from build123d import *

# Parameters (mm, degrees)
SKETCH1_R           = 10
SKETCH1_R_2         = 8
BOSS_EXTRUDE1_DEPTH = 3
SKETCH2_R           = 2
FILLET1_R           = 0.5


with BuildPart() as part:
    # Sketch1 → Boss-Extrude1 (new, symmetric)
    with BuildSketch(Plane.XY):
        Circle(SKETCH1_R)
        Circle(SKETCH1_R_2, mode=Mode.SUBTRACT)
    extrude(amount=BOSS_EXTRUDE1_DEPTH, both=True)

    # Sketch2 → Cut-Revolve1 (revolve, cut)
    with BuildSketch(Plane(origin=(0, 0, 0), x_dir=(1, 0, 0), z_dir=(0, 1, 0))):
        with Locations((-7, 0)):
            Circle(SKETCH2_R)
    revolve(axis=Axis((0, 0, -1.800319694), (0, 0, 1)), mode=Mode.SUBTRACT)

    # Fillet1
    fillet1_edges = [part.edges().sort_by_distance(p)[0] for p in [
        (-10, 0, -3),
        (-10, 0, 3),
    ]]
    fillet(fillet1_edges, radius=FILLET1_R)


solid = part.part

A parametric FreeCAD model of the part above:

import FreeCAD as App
import Part
import Sketcher
from FreeCAD import Vector
Q = App.Units.Quantity


def edges_at(feature, points):
    """Names of the edges that pass closest to the given points."""
    edges = feature.Shape.Edges
    near = lambda p: min(range(len(edges)), key=lambda i: edges[i].distToShape(Part.Vertex(*p))[0])
    return sorted({f"Edge{near(p) + 1}" for p in points})

doc = App.newDocument("Part")
body = doc.addObject("PartDesign::Body", "Body")

sketch1 = doc.addObject("Sketcher::SketchObject", "Sketch")
body.addObject(sketch1)
sketch1.AttachmentSupport = (doc.XY_Plane, [""])
sketch1.MapMode = "FlatFace"
sketch1.addGeometry([
    Part.Circle(Vector(0, 0, 0), Vector(0, 0, 1), 10),
    Part.Circle(Vector(0, 0, 0), Vector(0, 0, 1), 8),
], False)
sketch1.addConstraint([
    Sketcher.Constraint("Coincident", 0, 3, -1, 1),
    Sketcher.Constraint("Coincident", 1, 3, -1, 1),
    Sketcher.Constraint("Diameter", 0, Q("20 mm")),
    Sketcher.Constraint("Diameter", 1, Q("16 mm")),
])
pad1 = doc.addObject("PartDesign::Pad", "Pad")
body.addObject(pad1)
pad1.Profile = sketch1
pad1.Length = 6
pad1.Midplane = True

sketch2 = doc.addObject("Sketcher::SketchObject", "Sketch001")
body.addObject(sketch2)
sketch2.AttachmentSupport = (doc.XZ_Plane, [""])
sketch2.MapMode = "FlatFace"
sketch2.addGeometry(Part.Circle(Vector(-7, 0, 0), Vector(0, 0, 1), 2), False)
sketch2.addConstraint([
    Sketcher.Constraint("PointOnObject", 0, 3, -1),
    Sketcher.Constraint("Diameter", 0, Q("4 mm")),
    Sketcher.Constraint("DistanceX", 0, 3, -1, 1, Q("7 mm")),
])
groove = doc.addObject("PartDesign::Groove", "Groove")
body.addObject(groove)
groove.Profile = sketch2
groove.ReferenceAxis = (sketch2, ["V_Axis"])
groove.Angle = 360
doc.recompute()

fillet = doc.addObject("PartDesign::Fillet", "Fillet")
body.addObject(fillet)
fillet.Base = (groove, edges_at(groove, [(-10, 0, -3), (-10, 0, 3)]))
fillet.Radius = 0.5

doc.recompute()
